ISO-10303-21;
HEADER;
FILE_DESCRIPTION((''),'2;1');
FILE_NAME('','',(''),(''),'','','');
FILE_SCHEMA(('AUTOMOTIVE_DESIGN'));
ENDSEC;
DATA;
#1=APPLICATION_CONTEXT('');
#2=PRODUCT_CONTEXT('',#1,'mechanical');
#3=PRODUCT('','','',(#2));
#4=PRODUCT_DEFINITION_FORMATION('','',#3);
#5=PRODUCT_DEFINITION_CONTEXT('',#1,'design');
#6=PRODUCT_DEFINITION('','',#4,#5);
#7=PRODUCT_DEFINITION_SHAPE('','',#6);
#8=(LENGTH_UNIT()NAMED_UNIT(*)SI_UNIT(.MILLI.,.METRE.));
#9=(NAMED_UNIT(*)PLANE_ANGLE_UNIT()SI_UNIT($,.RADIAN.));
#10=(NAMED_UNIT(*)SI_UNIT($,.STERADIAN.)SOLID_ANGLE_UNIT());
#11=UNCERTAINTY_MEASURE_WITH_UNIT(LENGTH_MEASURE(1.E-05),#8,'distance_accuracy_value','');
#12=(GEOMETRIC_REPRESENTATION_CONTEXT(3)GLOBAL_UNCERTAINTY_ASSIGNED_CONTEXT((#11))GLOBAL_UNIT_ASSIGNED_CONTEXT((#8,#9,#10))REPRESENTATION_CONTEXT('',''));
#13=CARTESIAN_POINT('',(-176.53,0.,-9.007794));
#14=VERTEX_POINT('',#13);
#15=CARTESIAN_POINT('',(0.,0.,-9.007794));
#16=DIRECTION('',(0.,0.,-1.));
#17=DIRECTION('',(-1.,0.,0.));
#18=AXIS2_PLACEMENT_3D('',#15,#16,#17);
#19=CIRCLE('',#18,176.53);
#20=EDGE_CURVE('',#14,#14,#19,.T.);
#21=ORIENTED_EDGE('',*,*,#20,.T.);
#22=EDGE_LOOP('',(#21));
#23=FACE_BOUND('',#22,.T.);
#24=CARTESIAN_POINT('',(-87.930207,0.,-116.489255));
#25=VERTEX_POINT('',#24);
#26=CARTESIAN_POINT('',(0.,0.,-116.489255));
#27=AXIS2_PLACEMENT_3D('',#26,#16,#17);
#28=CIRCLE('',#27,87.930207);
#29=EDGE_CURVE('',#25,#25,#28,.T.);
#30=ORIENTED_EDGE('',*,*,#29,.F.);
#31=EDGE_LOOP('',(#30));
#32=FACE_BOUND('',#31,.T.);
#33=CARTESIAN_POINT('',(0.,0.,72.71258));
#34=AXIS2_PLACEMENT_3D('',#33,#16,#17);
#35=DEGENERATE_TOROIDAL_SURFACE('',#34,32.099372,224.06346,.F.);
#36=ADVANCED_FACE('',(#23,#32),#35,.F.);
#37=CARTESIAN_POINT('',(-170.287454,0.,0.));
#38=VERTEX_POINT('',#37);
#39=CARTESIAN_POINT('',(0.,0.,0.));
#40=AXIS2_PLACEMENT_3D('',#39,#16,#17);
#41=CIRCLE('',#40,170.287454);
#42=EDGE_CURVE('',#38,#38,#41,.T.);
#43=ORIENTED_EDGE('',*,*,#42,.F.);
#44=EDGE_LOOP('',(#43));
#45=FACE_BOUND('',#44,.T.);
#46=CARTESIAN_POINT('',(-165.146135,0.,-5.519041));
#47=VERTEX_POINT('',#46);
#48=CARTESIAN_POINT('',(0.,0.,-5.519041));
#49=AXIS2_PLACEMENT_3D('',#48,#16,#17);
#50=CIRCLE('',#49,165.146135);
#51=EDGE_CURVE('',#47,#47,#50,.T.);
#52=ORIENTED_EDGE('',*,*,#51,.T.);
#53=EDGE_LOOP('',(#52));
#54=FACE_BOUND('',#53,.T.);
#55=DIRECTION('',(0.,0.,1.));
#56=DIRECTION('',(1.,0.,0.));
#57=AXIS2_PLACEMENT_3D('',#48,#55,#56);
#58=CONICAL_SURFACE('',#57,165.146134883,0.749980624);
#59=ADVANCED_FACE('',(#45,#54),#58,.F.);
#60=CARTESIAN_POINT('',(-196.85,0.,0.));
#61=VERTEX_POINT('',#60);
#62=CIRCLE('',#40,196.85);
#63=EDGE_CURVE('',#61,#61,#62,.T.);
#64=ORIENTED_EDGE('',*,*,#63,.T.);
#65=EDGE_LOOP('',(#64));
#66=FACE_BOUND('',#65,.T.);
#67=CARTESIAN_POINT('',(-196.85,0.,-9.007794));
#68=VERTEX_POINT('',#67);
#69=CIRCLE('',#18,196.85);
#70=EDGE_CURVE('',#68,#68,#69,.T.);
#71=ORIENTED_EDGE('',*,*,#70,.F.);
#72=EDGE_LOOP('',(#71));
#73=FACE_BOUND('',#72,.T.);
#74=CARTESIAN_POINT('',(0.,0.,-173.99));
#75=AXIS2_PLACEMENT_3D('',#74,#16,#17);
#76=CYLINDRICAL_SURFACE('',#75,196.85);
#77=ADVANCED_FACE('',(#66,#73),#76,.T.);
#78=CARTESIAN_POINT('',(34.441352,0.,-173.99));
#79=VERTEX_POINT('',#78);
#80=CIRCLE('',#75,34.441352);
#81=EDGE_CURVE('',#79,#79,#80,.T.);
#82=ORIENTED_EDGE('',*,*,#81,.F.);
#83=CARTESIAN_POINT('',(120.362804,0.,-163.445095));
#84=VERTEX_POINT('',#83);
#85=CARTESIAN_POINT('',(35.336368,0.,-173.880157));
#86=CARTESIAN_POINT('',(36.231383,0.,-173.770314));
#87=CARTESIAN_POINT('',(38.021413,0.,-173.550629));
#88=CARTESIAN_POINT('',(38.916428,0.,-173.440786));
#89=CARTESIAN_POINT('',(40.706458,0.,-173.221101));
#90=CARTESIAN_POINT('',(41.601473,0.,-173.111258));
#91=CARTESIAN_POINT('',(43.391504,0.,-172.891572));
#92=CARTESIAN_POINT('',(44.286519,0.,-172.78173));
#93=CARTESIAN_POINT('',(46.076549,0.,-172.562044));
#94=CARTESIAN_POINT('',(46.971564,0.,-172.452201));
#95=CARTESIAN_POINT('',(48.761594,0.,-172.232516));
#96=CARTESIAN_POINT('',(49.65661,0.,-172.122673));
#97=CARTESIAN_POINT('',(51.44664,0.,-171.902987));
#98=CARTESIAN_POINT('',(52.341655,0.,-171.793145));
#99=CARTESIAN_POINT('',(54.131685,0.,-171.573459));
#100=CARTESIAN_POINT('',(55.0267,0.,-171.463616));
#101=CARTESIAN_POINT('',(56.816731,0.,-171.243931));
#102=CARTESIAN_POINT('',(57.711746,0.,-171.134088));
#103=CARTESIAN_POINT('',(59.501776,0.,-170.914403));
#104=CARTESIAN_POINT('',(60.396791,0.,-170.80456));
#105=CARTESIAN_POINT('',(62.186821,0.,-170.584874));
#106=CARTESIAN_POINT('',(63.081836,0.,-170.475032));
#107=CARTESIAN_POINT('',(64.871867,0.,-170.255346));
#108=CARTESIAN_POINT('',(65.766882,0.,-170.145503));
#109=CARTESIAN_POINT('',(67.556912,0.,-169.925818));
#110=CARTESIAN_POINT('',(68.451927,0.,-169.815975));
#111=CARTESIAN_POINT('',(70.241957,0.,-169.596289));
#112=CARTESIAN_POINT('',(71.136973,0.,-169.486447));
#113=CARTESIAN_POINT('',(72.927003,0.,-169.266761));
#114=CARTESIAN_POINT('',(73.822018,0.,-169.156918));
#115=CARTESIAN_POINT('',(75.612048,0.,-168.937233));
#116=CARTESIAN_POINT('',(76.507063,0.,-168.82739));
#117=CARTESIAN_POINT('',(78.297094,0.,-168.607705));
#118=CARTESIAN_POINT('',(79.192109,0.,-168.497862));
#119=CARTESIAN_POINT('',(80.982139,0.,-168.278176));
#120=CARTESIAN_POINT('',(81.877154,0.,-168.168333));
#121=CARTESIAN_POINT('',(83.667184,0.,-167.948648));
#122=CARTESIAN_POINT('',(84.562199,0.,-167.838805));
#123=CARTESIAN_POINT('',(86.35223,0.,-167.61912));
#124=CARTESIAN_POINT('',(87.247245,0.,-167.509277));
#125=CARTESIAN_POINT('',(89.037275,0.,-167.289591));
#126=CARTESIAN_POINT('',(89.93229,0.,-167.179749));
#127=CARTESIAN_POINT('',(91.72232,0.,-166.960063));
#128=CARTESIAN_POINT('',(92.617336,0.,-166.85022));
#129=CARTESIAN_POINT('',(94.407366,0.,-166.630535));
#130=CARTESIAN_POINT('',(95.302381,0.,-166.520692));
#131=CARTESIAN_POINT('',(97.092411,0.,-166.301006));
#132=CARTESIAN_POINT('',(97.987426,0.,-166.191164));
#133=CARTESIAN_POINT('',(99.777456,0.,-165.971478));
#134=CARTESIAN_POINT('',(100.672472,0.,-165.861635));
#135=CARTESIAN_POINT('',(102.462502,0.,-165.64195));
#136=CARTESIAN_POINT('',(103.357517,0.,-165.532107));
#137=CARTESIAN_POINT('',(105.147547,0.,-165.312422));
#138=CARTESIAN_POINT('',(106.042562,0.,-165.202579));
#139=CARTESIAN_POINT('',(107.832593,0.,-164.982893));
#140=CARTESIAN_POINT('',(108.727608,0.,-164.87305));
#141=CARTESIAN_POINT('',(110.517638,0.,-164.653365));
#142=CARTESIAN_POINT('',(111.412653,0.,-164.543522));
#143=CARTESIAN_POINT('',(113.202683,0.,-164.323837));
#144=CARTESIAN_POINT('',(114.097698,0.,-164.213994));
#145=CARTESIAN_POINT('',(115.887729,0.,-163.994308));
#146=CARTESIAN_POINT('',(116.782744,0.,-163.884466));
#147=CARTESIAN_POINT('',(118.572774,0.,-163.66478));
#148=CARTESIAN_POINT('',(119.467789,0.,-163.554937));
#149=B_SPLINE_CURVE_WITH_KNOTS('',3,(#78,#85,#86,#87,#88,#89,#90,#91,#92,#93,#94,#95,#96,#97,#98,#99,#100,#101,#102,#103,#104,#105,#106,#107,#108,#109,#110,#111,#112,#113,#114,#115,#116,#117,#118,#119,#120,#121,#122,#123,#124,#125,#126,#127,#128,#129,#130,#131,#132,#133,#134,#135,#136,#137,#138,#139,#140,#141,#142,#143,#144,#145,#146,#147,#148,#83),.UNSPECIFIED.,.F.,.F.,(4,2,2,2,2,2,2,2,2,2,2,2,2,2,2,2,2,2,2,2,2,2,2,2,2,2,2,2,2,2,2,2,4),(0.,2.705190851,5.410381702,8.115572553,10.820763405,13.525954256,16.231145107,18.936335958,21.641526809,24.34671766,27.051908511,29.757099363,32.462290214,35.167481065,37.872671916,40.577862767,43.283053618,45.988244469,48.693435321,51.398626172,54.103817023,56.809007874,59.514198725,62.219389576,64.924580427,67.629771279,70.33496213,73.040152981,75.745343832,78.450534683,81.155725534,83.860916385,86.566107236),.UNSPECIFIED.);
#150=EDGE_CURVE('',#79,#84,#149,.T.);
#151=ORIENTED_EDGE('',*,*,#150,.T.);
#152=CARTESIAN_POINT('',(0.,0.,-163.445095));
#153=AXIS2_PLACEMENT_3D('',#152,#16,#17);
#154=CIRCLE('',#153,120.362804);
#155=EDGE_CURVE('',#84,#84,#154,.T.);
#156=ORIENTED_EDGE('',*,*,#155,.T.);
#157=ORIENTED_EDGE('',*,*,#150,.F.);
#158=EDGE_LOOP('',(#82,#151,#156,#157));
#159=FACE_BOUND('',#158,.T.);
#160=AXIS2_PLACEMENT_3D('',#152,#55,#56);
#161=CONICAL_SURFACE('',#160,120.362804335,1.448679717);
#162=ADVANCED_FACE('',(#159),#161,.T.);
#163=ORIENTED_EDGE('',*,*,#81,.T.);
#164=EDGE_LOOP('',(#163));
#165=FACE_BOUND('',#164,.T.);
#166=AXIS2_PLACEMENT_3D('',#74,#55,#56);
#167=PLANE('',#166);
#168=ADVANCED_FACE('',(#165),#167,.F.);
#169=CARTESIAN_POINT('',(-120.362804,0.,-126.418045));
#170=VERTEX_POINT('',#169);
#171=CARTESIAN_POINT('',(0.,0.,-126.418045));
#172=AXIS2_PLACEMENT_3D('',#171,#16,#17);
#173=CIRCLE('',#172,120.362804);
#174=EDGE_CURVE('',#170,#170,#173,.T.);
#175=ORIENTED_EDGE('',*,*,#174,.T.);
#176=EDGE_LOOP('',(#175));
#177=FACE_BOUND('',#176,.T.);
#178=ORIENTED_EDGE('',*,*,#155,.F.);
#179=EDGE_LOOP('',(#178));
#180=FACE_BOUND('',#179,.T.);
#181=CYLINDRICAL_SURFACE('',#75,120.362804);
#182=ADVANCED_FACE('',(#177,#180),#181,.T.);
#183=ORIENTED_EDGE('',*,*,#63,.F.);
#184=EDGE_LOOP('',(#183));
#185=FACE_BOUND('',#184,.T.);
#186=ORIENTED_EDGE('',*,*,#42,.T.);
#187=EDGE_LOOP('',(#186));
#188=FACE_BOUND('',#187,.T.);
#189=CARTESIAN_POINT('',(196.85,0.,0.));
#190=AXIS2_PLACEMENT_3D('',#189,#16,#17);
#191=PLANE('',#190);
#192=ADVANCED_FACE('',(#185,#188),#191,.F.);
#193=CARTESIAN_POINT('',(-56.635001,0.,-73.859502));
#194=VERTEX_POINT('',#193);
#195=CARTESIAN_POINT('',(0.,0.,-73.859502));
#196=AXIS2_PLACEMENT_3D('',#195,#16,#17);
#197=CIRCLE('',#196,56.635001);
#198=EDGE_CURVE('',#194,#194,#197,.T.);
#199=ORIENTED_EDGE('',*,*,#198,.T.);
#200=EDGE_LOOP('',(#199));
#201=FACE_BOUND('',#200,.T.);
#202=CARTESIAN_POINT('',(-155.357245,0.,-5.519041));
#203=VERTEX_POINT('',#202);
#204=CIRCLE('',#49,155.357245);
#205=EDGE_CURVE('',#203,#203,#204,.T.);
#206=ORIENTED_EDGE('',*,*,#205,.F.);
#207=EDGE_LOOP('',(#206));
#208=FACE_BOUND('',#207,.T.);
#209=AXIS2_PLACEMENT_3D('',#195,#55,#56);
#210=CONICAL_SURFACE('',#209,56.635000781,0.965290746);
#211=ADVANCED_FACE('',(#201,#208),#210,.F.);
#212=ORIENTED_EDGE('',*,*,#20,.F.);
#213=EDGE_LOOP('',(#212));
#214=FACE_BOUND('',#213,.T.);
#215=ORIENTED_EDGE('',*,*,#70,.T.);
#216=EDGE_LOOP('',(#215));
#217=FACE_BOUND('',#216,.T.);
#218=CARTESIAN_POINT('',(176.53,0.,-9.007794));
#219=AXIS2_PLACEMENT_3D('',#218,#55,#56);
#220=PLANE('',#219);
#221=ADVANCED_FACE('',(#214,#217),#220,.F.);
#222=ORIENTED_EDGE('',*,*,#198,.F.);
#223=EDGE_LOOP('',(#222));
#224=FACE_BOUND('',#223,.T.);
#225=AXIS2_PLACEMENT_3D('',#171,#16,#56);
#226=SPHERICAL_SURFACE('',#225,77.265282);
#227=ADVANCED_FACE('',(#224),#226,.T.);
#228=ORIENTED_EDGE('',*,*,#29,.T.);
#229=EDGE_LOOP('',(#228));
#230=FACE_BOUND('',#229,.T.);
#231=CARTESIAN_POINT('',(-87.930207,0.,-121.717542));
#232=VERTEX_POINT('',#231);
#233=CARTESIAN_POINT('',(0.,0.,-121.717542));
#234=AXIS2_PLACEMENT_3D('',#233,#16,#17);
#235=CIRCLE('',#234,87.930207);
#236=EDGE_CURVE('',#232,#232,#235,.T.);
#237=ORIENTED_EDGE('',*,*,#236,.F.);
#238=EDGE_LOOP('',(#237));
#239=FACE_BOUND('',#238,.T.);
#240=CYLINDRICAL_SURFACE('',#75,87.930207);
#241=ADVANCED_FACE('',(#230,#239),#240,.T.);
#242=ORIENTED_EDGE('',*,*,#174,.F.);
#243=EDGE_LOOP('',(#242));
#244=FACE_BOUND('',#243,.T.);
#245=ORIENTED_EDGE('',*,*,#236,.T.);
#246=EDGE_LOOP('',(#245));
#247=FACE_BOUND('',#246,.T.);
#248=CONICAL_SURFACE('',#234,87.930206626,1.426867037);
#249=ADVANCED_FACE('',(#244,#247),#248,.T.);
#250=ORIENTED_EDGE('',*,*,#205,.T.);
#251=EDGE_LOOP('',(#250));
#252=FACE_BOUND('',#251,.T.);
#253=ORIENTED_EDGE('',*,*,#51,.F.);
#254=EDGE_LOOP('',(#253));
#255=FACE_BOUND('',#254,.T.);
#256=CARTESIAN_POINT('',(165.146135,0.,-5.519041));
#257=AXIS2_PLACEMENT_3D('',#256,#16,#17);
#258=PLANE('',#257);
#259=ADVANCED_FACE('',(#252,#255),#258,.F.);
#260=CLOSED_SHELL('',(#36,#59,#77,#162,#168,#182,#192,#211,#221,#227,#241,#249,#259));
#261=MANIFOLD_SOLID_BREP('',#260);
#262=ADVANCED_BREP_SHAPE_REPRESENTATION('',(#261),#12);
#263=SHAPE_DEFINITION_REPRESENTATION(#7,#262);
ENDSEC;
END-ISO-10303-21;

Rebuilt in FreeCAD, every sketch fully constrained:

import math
import FreeCAD as App
import Part
import Sketcher
from FreeCAD import Vector
Q = App.Units.Quantity

doc = App.newDocument("Part")
body = doc.addObject("PartDesign::Body", "Body")

sketch1 = body.newObject("Sketcher::SketchObject", "Sketch")
sketch1.AttachmentSupport = (doc.getObject("XZ_Plane"), [""])
sketch1.MapMode = "FlatFace"
sketch1.addGeometry(Part.LineSegment(Vector(34.441352, -173.99, 0), Vector(0, -173.99, 0)), False)
sketch1.addGeometry(Part.LineSegment(Vector(0, -173.99, 0), Vector(0, -49.152764, 0)), False)
sketch1.addGeometry(Part.ArcOfCircle(Part.Circle(Vector(0, -126.418045, 0), Vector(0, 0, 1), 77.265282), math.radians(42.862003), math.radians(90)), False)
sketch1.addGeometry(Part.LineSegment(Vector(56.635001, -73.859502, 0), Vector(155.357245, -5.519041, 0)), False)
sketch1.addGeometry(Part.LineSegment(Vector(155.357245, -5.519041, 0), Vector(165.146135, -5.519041, 0)), False)
sketch1.addGeometry(Part.LineSegment(Vector(165.146135, -5.519041, 0), Vector(170.287454, 0, 0)), False)
sketch1.addGeometry(Part.LineSegment(Vector(170.287454, 0, 0), Vector(196.85, 0, 0)), False)
sketch1.addGeometry(Part.LineSegment(Vector(196.85, 0, 0), Vector(196.85, -9.007794, 0)), False)
sketch1.addGeometry(Part.LineSegment(Vector(196.85, -9.007794, 0), Vector(176.53, -9.007794, 0)), False)
sketch1.addGeometry(Part.ArcOfCircle(Part.Circle(Vector(-32.099372, 72.71258, 0), Vector(0, 0, 1), 224.06346), math.radians(-57.608973), math.radians(-21.390338)), False)
sketch1.addGeometry(Part.LineSegment(Vector(87.930207, -116.489255, 0), Vector(87.930207, -121.717542, 0)), False)
sketch1.addGeometry(Part.LineSegment(Vector(87.930207, -121.717542, 0), Vector(120.362804, -126.418045, 0)), False)
sketch1.addGeometry(Part.LineSegment(Vector(120.362804, -126.418045, 0), Vector(120.362804, -163.445095, 0)), False)
sketch1.addGeometry(Part.LineSegment(Vector(120.362804, -163.445095, 0), Vector(34.441352, -173.99, 0)), False)
sketch1.addConstraint(Sketcher.Constraint("Coincident", 0, 2, 1, 1))
sketch1.addConstraint(Sketcher.Constraint("Coincident", 1, 2, 2, 2))
sketch1.addConstraint(Sketcher.Constraint("Coincident", 2, 1, 3, 1))
sketch1.addConstraint(Sketcher.Constraint("Coincident", 3, 2, 4, 1))
sketch1.addConstraint(Sketcher.Constraint("Coincident", 4, 2, 5, 1))
sketch1.addConstraint(Sketcher.Constraint("Coincident", 5, 2, 6, 1))
sketch1.addConstraint(Sketcher.Constraint("Coincident", 6, 2, 7, 1))
sketch1.addConstraint(Sketcher.Constraint("Coincident", 7, 2, 8, 1))
sketch1.addConstraint(Sketcher.Constraint("Coincident", 8, 2, 9, 2))
sketch1.addConstraint(Sketcher.Constraint("Coincident", 9, 1, 10, 1))
sketch1.addConstraint(Sketcher.Constraint("Coincident", 10, 2, 11, 1))
sketch1.addConstraint(Sketcher.Constraint("Coincident", 11, 2, 12, 1))
sketch1.addConstraint(Sketcher.Constraint("Coincident", 12, 2, 13, 1))
sketch1.addConstraint(Sketcher.Constraint("Coincident", 13, 2, 0, 1))
sketch1.addConstraint(Sketcher.Constraint("Horizontal", 0))
sketch1.addConstraint(Sketcher.Constraint("Vertical", 1))
sketch1.addConstraint(Sketcher.Constraint("Horizontal", 4))
sketch1.addConstraint(Sketcher.Constraint("Horizontal", 6))
sketch1.addConstraint(Sketcher.Constraint("Vertical", 7))
sketch1.addConstraint(Sketcher.Constraint("Horizontal", 8))
sketch1.addConstraint(Sketcher.Constraint("Vertical", 10))
sketch1.addConstraint(Sketcher.Constraint("Vertical", 12))
sketch1.addConstraint(Sketcher.Constraint("PointOnObject", 2, 3, -2))
sketch1.addConstraint(Sketcher.Constraint("PointOnObject", 0, 2, -2))
sketch1.addConstraint(Sketcher.Constraint("PointOnObject", 5, 2, -1))
sketch1.addConstraint(Sketcher.Constraint("Horizontal", 2, 3, 11, 2))
sketch1.addConstraint(Sketcher.Constraint("DistanceX", 8, 2, 8, 1, Q("0.8 in")))
sketch1.addConstraint(Sketcher.Constraint("DistanceY", 0, 2, -1, 1, Q("6.85 in")))
sketch1.addConstraint(Sketcher.Constraint("DistanceX", -1, 1, 6, 2, Q("7.75 in")))
sketch1.addConstraint(Sketcher.Constraint("Radius", 2, Q("77.265282 mm")))
sketch1.addConstraint(Sketcher.Constraint("Radius", 9, Q("224.06346 mm")))
sketch1.addConstraint(Sketcher.Constraint("DistanceY", -1, 1, 9, 3, Q("2.8627 in")))
sketch1.addConstraint(Sketcher.Constraint("DistanceX", 4, 1, 4, 2, Q("9.78889 mm")))
sketch1.addConstraint(Sketcher.Constraint("DistanceY", 12, 2, 12, 1, Q("37.027049 mm")))
sketch1.addConstraint(Sketcher.Constraint("DistanceX", -1, 1, 2, 1, Q("56.635001 mm")))
sketch1.addConstraint(Sketcher.Constraint("Distance", 3, Q("120.068731 mm")))
sketch1.addConstraint(Sketcher.Constraint("DistanceX", 0, 2, 0, 1, Q("34.441352 mm")))
sketch1.addConstraint(Sketcher.Constraint("DistanceX", 6, 1, 6, 2, Q("26.562546 mm")))
sketch1.addConstraint(Sketcher.Constraint("DistanceY", 1, 1, 1, 2, Q("124.837236 mm")))
sketch1.addConstraint(Sketcher.Constraint("DistanceY", 7, 2, 7, 1, Q("9.007794 mm")))
sketch1.addConstraint(Sketcher.Constraint("DistanceY", 10, 2, 10, 1, Q("5.228287 mm")))
sketch1.addConstraint(Sketcher.Constraint("DistanceY", 3, 2, -1, 1, Q("5.519041 mm")))
sketch1.addConstraint(Sketcher.Constraint("DistanceY", 10, 2, -1, 1, Q("121.717542 mm")))
sketch1.addConstraint(Sketcher.Constraint("DistanceX", 11, 2, 3, 2, Q("34.99444 mm")))
revolution = body.newObject("PartDesign::Revolution", "Revolution")
revolution.Profile = sketch1
revolution.ReferenceAxis = (sketch1, ["V_Axis"])
revolution.Angle = 360

doc.recompute()
